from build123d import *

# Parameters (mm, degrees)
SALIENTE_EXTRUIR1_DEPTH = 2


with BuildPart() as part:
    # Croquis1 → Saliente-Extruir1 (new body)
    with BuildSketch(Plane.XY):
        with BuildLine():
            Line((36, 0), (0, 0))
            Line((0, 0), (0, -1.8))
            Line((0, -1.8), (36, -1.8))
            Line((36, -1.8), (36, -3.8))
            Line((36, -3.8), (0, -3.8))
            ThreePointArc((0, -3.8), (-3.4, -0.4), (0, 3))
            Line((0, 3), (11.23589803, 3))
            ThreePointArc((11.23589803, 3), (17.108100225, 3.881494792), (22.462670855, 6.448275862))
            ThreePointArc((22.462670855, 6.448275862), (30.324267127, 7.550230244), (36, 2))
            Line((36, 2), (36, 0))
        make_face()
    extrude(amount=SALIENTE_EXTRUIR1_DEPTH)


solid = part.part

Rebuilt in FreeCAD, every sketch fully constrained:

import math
import FreeCAD as App
import Part
import Sketcher
from FreeCAD import Vector
Q = App.Units.Quantity

doc = App.newDocument("Part")
params = doc.addObject("Spreadsheet::Sheet", "Params")
for row, (alias, value) in enumerate([
    ("sketch1_radius", "9 mm"),
    ("sketch1_radius2", "20 mm"),
    ("sketch1_radius3", "3.4 mm"),
    ("sketch1_width", "36 mm"),
    ("sketch1_height", "2 mm"),
    ("pad1_length", "2 mm"),
], start=1):
    params.set(f"A{row}", alias)
    params.set(f"B{row}", "=" + value)
    params.setAlias(f"B{row}", alias)

body = doc.addObject("PartDesign::Body", "Body")

sketch1 = doc.addObject("Sketcher::SketchObject", "Sketch")
body.addObject(sketch1)
sketch1.AttachmentSupport = (doc.XY_Plane, [""])
sketch1.MapMode = "FlatFace"
sketch1.addGeometry([
    Part.LineSegment(Vector(0, 0, 0), Vector(36, 0, 0)),
    Part.LineSegment(Vector(36, 0, 0), Vector(36, 2, 0)),
    Part.ArcOfCircle(Part.Circle(Vector(27.5, -1, 0), Vector(0, 0, 1), 9), math.radians(19), math.radians(124)),
    Part.ArcOfCircle(Part.Circle(Vector(11.2, 23, 0), Vector(0, 0, 1), 20), math.radians(-90), math.radians(-56)),
    Part.LineSegment(Vector(11.2, 3, 0), Vector(0, 3, 0)),
    Part.ArcOfCircle(Part.Circle(Vector(0, -0.4, 0), Vector(0, 0, 1), 3.4), math.radians(90), math.radians(270)),
    Part.LineSegment(Vector(0, -3.8, 0), Vector(36, -3.8, 0)),
    Part.LineSegment(Vector(36, -3.8, 0), Vector(36, -1.8, 0)),
    Part.LineSegment(Vector(36, -1.8, 0), Vector(0, -1.8, 0)),
    Part.LineSegment(Vector(0, -1.8, 0), Vector(0, 0, 0)),
], False)
sketch1.addConstraint([
    Sketcher.Constraint("Coincident", 0, 2, 1, 1),
    Sketcher.Constraint("Coincident", 1, 2, 2, 1),
    Sketcher.Constraint("Tangent", 2, 2, 3, 2),
    Sketcher.Constraint("Tangent", 3, 1, 4, 1),
    Sketcher.Constraint("Tangent", 4, 2, 5, 1),
    Sketcher.Constraint("Tangent", 5, 2, 6, 1),
    Sketcher.Constraint("Coincident", 6, 2, 7, 1),
    Sketcher.Constraint("Coincident", 7, 2, 8, 1),
    Sketcher.Constraint("Coincident", 8, 2, 9, 1),
    Sketcher.Constraint("Coincident", 9, 2, 0, 1),
    Sketcher.Constraint("Horizontal", 0),
    Sketcher.Constraint("Vertical", 1),
    Sketcher.Constraint("Horizontal", 4),
    Sketcher.Constraint("Horizontal", 6),
    Sketcher.Constraint("Vertical", 7),
    Sketcher.Constraint("Horizontal", 8),
    Sketcher.Constraint("Vertical", 9),
    Sketcher.Constraint("Coincident", 9, 2, -1, 1),
    Sketcher.Constraint("PointOnObject", 5, 3, -2),
    Sketcher.Constraint("Vertical", 1, 2, 6, 2),
    Sketcher.Constraint("Equal", 1, 7),
    Sketcher.Constraint("Radius", 2, Q("9 mm")),
    Sketcher.Constraint("Radius", 3, Q("20 mm")),
    Sketcher.Constraint("Radius", 5, Q("3.4 mm")),
    Sketcher.Constraint("DistanceX", 0, 1, 0, 2, Q("36 mm")),
    Sketcher.Constraint("DistanceY", 1, 1, 1, 2, Q("2 mm")),
    Sketcher.Constraint("DistanceY", 9, 1, 9, 2, Q("1.8 mm")),
    Sketcher.Constraint("DistanceY", 2, 3, -1, 1, Q("1 mm")),
])
sketch1.setExpression("Constraints[21]", "Params.sketch1_radius")
sketch1.setExpression("Constraints[22]", "Params.sketch1_radius2")
sketch1.setExpression("Constraints[23]", "Params.sketch1_radius3")
sketch1.setExpression("Constraints[24]", "Params.sketch1_width")
sketch1.setExpression("Constraints[25]", "Params.sketch1_height")
pad1 = doc.addObject("PartDesign::Pad", "Pad")
body.addObject(pad1)
pad1.Profile = sketch1
pad1.setExpression("Length", "Params.pad1_length")

doc.recompute()
